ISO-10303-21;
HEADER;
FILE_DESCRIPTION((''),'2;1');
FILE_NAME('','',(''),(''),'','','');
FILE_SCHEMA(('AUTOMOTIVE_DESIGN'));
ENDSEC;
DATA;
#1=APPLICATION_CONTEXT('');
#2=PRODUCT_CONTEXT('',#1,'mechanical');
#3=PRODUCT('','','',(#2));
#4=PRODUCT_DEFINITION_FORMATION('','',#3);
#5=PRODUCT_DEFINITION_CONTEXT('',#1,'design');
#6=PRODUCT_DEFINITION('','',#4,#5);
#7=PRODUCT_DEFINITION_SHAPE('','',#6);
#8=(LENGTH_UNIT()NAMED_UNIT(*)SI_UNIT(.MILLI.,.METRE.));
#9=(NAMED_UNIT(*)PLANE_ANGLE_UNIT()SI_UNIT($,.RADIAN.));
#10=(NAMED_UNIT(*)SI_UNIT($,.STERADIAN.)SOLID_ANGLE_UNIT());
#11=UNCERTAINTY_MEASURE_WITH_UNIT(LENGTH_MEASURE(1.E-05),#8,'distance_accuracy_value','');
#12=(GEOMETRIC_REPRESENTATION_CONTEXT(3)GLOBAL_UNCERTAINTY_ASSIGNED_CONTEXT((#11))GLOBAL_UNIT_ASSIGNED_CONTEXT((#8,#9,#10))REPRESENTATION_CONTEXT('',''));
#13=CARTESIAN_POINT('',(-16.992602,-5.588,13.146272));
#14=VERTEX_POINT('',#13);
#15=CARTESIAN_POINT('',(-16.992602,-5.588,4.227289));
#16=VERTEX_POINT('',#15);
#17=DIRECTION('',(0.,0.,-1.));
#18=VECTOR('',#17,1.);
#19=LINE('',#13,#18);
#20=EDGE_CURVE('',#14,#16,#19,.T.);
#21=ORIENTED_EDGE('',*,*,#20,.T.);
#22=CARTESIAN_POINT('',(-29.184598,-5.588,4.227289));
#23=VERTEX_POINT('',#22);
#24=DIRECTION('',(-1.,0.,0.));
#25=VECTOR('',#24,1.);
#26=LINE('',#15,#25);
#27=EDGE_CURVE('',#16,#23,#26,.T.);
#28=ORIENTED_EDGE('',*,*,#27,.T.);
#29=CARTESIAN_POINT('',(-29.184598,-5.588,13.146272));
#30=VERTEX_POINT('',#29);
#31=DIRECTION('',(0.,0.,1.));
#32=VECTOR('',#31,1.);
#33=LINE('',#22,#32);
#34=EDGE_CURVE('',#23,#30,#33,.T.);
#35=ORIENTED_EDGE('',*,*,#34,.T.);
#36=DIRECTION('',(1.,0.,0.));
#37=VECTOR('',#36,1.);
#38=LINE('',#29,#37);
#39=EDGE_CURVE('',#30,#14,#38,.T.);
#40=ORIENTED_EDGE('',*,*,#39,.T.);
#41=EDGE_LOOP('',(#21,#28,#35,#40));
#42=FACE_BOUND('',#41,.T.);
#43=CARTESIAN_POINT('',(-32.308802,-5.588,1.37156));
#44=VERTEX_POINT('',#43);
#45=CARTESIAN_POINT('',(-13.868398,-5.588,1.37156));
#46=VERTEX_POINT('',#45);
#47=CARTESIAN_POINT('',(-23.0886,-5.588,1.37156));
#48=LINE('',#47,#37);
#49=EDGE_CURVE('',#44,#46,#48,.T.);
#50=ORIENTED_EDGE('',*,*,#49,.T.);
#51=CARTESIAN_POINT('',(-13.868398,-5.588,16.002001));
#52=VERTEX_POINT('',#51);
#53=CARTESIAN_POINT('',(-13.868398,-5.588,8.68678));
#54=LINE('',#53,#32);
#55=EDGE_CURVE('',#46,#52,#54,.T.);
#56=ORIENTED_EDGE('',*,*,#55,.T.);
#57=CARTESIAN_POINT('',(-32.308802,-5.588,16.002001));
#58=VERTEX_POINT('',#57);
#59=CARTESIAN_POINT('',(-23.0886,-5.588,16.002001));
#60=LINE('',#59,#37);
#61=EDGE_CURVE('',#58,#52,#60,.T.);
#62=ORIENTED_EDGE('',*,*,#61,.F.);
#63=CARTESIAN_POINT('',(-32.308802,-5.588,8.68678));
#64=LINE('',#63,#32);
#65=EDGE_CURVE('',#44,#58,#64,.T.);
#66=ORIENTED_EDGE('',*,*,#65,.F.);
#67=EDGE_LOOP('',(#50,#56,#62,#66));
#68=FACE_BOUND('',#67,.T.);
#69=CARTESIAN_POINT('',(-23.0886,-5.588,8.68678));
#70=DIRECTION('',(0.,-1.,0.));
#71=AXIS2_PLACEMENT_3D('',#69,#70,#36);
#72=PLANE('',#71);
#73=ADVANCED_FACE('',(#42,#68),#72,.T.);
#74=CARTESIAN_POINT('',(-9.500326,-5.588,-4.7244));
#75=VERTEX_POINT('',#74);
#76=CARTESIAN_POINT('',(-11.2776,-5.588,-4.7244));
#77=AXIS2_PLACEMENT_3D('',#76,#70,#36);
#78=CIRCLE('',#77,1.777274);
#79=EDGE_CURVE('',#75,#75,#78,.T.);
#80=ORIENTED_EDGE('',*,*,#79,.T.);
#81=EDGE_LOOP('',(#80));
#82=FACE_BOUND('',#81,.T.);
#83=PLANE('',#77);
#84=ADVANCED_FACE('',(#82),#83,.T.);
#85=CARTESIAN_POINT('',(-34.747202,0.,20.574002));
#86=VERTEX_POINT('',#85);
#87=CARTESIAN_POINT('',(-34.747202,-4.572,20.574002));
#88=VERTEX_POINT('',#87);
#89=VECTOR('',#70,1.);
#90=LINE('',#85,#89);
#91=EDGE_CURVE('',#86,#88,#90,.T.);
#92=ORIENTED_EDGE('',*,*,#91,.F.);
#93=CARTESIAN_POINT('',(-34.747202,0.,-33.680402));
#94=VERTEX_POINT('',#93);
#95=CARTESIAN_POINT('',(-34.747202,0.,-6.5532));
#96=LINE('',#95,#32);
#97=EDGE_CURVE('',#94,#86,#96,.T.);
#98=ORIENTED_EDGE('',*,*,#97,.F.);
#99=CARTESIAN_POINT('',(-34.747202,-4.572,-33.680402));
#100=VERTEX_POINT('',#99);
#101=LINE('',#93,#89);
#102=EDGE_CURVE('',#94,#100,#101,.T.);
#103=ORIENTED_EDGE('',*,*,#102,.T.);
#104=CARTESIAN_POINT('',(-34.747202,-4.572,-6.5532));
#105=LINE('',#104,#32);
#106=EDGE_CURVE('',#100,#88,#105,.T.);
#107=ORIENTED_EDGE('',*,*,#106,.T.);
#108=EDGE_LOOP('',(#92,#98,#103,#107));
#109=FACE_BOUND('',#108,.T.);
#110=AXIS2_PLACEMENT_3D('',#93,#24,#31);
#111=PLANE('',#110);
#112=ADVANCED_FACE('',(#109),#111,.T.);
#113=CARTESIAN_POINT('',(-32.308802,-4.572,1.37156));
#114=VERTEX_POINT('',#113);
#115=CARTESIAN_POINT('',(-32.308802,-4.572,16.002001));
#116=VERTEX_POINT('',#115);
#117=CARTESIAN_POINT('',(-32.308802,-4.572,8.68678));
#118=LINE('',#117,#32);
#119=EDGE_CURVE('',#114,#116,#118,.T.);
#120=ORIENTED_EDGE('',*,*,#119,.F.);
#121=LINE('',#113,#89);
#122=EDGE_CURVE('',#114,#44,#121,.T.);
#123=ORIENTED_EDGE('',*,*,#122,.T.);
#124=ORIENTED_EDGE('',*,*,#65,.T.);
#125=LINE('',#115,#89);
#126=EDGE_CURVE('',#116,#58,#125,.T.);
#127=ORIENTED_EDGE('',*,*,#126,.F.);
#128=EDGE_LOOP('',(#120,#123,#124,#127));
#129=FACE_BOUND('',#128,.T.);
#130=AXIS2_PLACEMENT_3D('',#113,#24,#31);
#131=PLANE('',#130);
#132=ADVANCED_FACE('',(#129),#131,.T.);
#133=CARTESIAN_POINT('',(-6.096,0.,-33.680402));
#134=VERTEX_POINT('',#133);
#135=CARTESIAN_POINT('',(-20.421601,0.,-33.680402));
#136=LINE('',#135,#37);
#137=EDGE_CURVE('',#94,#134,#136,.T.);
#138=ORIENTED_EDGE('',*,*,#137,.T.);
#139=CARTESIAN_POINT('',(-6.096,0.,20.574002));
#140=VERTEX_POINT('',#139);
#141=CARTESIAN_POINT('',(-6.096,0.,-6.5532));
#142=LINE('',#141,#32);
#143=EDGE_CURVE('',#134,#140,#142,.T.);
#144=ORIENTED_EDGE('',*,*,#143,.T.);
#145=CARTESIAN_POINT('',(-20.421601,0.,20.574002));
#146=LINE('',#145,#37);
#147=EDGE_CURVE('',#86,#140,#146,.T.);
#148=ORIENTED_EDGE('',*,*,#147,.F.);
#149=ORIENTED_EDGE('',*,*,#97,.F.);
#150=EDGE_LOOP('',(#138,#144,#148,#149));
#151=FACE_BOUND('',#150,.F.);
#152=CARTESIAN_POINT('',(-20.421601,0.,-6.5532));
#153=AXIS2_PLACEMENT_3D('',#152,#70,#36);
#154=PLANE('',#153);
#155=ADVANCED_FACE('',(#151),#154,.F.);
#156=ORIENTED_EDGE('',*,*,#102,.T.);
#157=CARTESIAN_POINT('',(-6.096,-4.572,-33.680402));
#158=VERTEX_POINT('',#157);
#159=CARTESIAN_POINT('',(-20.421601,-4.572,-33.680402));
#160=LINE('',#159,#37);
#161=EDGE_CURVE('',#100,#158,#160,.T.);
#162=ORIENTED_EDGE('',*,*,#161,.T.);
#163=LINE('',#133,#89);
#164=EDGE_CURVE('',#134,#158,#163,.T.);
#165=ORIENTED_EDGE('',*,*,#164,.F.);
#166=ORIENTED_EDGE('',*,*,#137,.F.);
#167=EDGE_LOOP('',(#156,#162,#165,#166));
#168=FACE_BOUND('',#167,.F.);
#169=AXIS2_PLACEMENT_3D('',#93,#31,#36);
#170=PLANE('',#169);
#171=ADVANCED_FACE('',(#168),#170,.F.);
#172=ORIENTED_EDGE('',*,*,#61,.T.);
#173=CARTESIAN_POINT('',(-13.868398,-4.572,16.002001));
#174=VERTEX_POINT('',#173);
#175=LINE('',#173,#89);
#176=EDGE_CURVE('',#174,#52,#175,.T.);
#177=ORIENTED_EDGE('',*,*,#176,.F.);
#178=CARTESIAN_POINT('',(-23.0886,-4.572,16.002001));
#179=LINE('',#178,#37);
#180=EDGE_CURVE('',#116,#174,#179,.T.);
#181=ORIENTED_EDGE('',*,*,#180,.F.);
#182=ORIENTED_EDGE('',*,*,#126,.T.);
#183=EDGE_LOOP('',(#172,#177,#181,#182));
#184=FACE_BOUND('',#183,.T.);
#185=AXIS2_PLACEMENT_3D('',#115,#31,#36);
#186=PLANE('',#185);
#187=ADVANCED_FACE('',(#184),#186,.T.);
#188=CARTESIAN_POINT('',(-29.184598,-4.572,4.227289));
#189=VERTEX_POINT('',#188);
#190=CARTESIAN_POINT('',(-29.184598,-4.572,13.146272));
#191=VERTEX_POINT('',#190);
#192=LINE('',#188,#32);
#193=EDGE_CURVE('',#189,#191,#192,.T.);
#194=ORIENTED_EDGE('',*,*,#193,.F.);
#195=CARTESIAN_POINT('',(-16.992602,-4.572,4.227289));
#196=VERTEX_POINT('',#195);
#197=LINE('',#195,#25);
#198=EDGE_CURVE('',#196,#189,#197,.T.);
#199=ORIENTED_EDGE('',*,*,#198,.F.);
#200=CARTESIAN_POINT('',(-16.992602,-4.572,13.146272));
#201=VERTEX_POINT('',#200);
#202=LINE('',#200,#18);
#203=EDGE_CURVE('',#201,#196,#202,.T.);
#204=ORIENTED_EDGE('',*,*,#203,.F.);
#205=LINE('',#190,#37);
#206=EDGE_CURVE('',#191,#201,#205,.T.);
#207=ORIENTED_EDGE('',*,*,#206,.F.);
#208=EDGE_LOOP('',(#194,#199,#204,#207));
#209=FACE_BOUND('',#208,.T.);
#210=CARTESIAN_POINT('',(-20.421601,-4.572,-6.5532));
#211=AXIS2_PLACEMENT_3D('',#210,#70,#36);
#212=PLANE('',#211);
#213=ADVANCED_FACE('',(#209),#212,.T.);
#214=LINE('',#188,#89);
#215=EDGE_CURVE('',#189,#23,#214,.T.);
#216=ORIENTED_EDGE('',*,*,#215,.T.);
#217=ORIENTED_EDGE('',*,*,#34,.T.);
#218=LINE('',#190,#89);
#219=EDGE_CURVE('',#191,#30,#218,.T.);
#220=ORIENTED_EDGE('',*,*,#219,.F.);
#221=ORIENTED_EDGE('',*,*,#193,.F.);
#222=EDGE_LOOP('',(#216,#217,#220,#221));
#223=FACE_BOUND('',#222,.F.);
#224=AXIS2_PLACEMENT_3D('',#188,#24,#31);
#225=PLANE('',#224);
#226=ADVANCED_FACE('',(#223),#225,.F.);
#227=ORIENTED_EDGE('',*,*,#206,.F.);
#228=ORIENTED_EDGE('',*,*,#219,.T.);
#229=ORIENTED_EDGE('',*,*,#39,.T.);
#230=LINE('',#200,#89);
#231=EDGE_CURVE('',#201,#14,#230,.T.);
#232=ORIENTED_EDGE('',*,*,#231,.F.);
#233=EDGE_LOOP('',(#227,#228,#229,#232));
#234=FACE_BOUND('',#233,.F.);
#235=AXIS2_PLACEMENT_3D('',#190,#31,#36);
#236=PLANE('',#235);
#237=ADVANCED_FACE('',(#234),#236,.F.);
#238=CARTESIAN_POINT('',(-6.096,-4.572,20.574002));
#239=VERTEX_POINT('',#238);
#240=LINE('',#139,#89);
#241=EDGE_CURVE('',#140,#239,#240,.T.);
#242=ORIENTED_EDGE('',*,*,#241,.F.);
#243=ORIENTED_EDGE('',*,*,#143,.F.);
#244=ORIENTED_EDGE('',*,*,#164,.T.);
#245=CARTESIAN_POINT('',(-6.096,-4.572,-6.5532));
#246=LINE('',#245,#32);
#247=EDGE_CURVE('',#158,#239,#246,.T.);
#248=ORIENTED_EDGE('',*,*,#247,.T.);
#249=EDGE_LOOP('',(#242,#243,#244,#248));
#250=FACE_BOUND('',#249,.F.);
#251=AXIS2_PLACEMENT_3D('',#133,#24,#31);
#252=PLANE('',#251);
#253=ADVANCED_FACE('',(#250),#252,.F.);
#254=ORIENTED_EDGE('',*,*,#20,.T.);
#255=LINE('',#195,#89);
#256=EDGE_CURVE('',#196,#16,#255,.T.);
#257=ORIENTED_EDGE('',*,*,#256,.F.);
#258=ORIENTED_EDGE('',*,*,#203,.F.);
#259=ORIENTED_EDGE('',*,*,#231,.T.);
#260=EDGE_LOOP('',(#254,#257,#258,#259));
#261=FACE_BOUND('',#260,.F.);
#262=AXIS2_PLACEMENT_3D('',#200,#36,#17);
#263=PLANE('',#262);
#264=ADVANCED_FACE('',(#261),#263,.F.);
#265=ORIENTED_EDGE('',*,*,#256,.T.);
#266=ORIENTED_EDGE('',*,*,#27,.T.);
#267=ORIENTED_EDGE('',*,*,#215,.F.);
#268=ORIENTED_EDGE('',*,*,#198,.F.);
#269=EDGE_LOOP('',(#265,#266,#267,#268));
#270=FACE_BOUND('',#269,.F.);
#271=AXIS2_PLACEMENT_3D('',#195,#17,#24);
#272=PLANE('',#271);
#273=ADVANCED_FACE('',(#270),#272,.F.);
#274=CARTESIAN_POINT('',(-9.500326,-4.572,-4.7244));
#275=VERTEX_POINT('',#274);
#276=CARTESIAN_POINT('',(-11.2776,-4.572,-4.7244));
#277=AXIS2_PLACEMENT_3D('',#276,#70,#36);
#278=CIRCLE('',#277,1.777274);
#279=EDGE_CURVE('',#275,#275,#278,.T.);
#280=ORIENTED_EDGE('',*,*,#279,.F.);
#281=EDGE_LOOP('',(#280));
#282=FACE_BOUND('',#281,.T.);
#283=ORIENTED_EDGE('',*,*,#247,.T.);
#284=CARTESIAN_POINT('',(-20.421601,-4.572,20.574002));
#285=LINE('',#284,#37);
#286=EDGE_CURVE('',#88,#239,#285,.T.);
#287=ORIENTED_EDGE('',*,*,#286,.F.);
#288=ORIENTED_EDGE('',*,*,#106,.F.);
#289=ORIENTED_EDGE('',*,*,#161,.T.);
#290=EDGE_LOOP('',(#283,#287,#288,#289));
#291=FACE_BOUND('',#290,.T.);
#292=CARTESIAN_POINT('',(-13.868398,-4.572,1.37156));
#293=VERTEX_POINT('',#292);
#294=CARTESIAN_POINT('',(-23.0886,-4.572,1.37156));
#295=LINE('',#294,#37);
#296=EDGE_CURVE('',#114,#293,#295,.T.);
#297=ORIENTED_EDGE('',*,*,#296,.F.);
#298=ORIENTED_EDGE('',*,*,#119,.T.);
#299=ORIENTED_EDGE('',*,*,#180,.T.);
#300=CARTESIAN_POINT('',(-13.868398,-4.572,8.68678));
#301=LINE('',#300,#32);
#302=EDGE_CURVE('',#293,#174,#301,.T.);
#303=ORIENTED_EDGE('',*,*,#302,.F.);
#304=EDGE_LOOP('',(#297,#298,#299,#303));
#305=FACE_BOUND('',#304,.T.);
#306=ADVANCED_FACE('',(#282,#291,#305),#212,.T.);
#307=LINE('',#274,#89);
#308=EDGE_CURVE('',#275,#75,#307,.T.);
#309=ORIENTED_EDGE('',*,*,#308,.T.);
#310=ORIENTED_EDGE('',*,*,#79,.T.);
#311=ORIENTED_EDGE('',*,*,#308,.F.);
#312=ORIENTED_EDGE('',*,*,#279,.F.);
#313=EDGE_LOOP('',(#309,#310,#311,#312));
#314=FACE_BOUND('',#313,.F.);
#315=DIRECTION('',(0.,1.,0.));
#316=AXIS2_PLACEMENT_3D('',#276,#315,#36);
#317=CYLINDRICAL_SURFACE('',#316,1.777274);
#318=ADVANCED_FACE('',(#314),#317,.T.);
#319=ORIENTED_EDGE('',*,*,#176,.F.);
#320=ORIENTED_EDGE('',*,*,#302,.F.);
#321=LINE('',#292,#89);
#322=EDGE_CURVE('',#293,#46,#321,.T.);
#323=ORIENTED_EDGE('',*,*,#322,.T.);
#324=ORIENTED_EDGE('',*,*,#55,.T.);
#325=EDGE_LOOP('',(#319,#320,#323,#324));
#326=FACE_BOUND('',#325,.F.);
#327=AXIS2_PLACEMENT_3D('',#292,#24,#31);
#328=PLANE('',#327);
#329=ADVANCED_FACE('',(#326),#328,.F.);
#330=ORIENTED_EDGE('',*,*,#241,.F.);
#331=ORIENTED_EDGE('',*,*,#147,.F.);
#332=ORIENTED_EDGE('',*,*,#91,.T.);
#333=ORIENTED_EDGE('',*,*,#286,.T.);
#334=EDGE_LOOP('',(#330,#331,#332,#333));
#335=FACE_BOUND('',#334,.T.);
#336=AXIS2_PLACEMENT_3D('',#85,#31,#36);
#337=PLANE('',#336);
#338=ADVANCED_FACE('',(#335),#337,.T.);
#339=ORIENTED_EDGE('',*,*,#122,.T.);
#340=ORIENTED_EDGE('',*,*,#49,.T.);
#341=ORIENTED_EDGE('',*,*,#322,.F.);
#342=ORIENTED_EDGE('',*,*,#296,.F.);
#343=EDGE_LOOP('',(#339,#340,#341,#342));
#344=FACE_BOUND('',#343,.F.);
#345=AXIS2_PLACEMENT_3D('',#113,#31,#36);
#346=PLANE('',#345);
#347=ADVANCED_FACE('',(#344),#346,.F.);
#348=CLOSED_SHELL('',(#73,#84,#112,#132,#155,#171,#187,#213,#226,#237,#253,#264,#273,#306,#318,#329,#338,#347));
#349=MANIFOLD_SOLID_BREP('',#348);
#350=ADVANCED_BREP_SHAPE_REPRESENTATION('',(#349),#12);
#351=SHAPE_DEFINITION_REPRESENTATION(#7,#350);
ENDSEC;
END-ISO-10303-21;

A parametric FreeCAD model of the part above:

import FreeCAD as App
import Part
import Sketcher
Q = App.Units.Quantity


def add_polygon(sketch, points):
    """Adds a closed chain of lines whose ends are joined by coincident constraints."""
    first, n = sketch.GeometryCount, len(points)
    for a, b in zip(points, points[1:] + points[:1]):
        sketch.addGeometry(Part.LineSegment(App.Vector(*a, 0), App.Vector(*b, 0)), False)
    for i in range(n):
        sketch.addConstraint(Sketcher.Constraint("Coincident", first + i, 2, first + (i + 1) % n, 1))

doc = App.newDocument("Part")
params = doc.addObject("Spreadsheet::Sheet", "Params")
for row, (alias, value) in enumerate([
    ("sketch1_width", "1.1280001 in"),
    ("sketch1_height", "2.1360002 in"),
    ("pad1_length", "0.18 in"),
    ("sketch2_width", "0.4799998 in"),
    ("sketch2_width2", "0.7260001 in"),
    ("pad2_length", "0.04 in"),
], start=1):
    params.set(f"A{row}", alias)
    params.set(f"B{row}", "=" + value)
    params.setAlias(f"B{row}", alias)

body = doc.addObject("PartDesign::Body", "Body")

sketch1 = body.newObject("Sketcher::SketchObject", "Sketch")
sketch1.AttachmentSupport = (doc.getObject("XZ_Plane"), [""])
sketch1.MapMode = "FlatFace"
add_polygon(sketch1, [(-35, 21), (-35, -34), (-6, -34), (-6, 21)])
sketch1.addConstraint(Sketcher.Constraint("Vertical", 0))
sketch1.addConstraint(Sketcher.Constraint("Horizontal", 1))
sketch1.addConstraint(Sketcher.Constraint("Vertical", 2))
sketch1.addConstraint(Sketcher.Constraint("Horizontal", 3))
sketch1.addConstraint(Sketcher.Constraint("DistanceX", 1, 1, 1, 2, Q("1.1280001 in")))
sketch1.addConstraint(Sketcher.Constraint("DistanceY", 0, 2, 0, 1, Q("2.1360002 in")))
sketch1.addConstraint(Sketcher.Constraint("DistanceX", 1, 2, -1, 1, Q("0.24 in")))
sketch1.addConstraint(Sketcher.Constraint("DistanceY", -1, 1, 2, 2, Q("0.8100001 in")))
sketch1.setExpression("Constraints[8]", "Params.sketch1_width")
sketch1.setExpression("Constraints[9]", "Params.sketch1_height")
pad1 = body.newObject("PartDesign::Pad", "Pad")
pad1.Profile = sketch1
pad1.setExpression("Length", "Params.pad1_length")

sketch2 = body.newObject("Sketcher::SketchObject", "Sketch001")
sketch2.AttachmentSupport = (doc.getObject("XZ_Plane"), [""])
sketch2.MapMode = "FlatFace"
sketch2.AttachmentOffset = App.Placement(App.Vector(0, 0, 0.18 * 25.4), App.Rotation())
sketch2.addGeometry(Part.Circle(App.Vector(-11.3, -4.7, 0), App.Vector(0, 0, 1), 1.8), False)
add_polygon(sketch2, [(-32.3, 16), (-32.3, 1.4), (-13.9, 1.4), (-13.9, 16)])
add_polygon(sketch2, [(-29.2, 4.2), (-29.2, 13.1), (-17, 13.1), (-17, 4.2)])
sketch2.addConstraint(Sketcher.Constraint("Vertical", 1))
sketch2.addConstraint(Sketcher.Constraint("Horizontal", 2))
sketch2.addConstraint(Sketcher.Constraint("Vertical", 3))
sketch2.addConstraint(Sketcher.Constraint("Horizontal", 4))
sketch2.addConstraint(Sketcher.Constraint("Vertical", 5))
sketch2.addConstraint(Sketcher.Constraint("Horizontal", 6))
sketch2.addConstraint(Sketcher.Constraint("Vertical", 7))
sketch2.addConstraint(Sketcher.Constraint("Horizontal", 8))
sketch2.addConstraint(Sketcher.Constraint("DistanceX", 6, 1, 6, 2, Q("0.4799998 in")))
sketch2.addConstraint(Sketcher.Constraint("DistanceX", 2, 1, 2, 2, Q("0.7260001 in")))
sketch2.addConstraint(Sketcher.Constraint("DistanceY", -1, 1, 3, 2, Q("0.63 in")))
sketch2.addConstraint(Sketcher.Constraint("Diameter", 0, Q("3.554548 mm")))
sketch2.addConstraint(Sketcher.Constraint("DistanceX", 0, 3, -1, 1, Q("0.444 in")))
sketch2.addConstraint(Sketcher.Constraint("DistanceY", 0, 3, -1, 1, Q("0.186 in")))
sketch2.addConstraint(Sketcher.Constraint("DistanceX", 1, 2, -1, 1, Q("1.2720001 in")))
sketch2.addConstraint(Sketcher.Constraint("DistanceX", 5, 2, -1, 1, Q("1.1489999 in")))
sketch2.addConstraint(Sketcher.Constraint("DistanceY", 1, 2, 1, 1, Q("14.630441 mm")))
sketch2.addConstraint(Sketcher.Constraint("DistanceY", 5, 1, 5, 2, Q("8.918983 mm")))
sketch2.addConstraint(Sketcher.Constraint("DistanceY", -1, 1, 7, 2, Q("4.227289 mm")))
sketch2.setExpression("Constraints[16]", "Params.sketch2_width")
sketch2.setExpression("Constraints[17]", "Params.sketch2_width2")
pad2 = body.newObject("PartDesign::Pad", "Pad001")
pad2.Profile = sketch2
pad2.setExpression("Length", "Params.pad2_length")

doc.recompute()
